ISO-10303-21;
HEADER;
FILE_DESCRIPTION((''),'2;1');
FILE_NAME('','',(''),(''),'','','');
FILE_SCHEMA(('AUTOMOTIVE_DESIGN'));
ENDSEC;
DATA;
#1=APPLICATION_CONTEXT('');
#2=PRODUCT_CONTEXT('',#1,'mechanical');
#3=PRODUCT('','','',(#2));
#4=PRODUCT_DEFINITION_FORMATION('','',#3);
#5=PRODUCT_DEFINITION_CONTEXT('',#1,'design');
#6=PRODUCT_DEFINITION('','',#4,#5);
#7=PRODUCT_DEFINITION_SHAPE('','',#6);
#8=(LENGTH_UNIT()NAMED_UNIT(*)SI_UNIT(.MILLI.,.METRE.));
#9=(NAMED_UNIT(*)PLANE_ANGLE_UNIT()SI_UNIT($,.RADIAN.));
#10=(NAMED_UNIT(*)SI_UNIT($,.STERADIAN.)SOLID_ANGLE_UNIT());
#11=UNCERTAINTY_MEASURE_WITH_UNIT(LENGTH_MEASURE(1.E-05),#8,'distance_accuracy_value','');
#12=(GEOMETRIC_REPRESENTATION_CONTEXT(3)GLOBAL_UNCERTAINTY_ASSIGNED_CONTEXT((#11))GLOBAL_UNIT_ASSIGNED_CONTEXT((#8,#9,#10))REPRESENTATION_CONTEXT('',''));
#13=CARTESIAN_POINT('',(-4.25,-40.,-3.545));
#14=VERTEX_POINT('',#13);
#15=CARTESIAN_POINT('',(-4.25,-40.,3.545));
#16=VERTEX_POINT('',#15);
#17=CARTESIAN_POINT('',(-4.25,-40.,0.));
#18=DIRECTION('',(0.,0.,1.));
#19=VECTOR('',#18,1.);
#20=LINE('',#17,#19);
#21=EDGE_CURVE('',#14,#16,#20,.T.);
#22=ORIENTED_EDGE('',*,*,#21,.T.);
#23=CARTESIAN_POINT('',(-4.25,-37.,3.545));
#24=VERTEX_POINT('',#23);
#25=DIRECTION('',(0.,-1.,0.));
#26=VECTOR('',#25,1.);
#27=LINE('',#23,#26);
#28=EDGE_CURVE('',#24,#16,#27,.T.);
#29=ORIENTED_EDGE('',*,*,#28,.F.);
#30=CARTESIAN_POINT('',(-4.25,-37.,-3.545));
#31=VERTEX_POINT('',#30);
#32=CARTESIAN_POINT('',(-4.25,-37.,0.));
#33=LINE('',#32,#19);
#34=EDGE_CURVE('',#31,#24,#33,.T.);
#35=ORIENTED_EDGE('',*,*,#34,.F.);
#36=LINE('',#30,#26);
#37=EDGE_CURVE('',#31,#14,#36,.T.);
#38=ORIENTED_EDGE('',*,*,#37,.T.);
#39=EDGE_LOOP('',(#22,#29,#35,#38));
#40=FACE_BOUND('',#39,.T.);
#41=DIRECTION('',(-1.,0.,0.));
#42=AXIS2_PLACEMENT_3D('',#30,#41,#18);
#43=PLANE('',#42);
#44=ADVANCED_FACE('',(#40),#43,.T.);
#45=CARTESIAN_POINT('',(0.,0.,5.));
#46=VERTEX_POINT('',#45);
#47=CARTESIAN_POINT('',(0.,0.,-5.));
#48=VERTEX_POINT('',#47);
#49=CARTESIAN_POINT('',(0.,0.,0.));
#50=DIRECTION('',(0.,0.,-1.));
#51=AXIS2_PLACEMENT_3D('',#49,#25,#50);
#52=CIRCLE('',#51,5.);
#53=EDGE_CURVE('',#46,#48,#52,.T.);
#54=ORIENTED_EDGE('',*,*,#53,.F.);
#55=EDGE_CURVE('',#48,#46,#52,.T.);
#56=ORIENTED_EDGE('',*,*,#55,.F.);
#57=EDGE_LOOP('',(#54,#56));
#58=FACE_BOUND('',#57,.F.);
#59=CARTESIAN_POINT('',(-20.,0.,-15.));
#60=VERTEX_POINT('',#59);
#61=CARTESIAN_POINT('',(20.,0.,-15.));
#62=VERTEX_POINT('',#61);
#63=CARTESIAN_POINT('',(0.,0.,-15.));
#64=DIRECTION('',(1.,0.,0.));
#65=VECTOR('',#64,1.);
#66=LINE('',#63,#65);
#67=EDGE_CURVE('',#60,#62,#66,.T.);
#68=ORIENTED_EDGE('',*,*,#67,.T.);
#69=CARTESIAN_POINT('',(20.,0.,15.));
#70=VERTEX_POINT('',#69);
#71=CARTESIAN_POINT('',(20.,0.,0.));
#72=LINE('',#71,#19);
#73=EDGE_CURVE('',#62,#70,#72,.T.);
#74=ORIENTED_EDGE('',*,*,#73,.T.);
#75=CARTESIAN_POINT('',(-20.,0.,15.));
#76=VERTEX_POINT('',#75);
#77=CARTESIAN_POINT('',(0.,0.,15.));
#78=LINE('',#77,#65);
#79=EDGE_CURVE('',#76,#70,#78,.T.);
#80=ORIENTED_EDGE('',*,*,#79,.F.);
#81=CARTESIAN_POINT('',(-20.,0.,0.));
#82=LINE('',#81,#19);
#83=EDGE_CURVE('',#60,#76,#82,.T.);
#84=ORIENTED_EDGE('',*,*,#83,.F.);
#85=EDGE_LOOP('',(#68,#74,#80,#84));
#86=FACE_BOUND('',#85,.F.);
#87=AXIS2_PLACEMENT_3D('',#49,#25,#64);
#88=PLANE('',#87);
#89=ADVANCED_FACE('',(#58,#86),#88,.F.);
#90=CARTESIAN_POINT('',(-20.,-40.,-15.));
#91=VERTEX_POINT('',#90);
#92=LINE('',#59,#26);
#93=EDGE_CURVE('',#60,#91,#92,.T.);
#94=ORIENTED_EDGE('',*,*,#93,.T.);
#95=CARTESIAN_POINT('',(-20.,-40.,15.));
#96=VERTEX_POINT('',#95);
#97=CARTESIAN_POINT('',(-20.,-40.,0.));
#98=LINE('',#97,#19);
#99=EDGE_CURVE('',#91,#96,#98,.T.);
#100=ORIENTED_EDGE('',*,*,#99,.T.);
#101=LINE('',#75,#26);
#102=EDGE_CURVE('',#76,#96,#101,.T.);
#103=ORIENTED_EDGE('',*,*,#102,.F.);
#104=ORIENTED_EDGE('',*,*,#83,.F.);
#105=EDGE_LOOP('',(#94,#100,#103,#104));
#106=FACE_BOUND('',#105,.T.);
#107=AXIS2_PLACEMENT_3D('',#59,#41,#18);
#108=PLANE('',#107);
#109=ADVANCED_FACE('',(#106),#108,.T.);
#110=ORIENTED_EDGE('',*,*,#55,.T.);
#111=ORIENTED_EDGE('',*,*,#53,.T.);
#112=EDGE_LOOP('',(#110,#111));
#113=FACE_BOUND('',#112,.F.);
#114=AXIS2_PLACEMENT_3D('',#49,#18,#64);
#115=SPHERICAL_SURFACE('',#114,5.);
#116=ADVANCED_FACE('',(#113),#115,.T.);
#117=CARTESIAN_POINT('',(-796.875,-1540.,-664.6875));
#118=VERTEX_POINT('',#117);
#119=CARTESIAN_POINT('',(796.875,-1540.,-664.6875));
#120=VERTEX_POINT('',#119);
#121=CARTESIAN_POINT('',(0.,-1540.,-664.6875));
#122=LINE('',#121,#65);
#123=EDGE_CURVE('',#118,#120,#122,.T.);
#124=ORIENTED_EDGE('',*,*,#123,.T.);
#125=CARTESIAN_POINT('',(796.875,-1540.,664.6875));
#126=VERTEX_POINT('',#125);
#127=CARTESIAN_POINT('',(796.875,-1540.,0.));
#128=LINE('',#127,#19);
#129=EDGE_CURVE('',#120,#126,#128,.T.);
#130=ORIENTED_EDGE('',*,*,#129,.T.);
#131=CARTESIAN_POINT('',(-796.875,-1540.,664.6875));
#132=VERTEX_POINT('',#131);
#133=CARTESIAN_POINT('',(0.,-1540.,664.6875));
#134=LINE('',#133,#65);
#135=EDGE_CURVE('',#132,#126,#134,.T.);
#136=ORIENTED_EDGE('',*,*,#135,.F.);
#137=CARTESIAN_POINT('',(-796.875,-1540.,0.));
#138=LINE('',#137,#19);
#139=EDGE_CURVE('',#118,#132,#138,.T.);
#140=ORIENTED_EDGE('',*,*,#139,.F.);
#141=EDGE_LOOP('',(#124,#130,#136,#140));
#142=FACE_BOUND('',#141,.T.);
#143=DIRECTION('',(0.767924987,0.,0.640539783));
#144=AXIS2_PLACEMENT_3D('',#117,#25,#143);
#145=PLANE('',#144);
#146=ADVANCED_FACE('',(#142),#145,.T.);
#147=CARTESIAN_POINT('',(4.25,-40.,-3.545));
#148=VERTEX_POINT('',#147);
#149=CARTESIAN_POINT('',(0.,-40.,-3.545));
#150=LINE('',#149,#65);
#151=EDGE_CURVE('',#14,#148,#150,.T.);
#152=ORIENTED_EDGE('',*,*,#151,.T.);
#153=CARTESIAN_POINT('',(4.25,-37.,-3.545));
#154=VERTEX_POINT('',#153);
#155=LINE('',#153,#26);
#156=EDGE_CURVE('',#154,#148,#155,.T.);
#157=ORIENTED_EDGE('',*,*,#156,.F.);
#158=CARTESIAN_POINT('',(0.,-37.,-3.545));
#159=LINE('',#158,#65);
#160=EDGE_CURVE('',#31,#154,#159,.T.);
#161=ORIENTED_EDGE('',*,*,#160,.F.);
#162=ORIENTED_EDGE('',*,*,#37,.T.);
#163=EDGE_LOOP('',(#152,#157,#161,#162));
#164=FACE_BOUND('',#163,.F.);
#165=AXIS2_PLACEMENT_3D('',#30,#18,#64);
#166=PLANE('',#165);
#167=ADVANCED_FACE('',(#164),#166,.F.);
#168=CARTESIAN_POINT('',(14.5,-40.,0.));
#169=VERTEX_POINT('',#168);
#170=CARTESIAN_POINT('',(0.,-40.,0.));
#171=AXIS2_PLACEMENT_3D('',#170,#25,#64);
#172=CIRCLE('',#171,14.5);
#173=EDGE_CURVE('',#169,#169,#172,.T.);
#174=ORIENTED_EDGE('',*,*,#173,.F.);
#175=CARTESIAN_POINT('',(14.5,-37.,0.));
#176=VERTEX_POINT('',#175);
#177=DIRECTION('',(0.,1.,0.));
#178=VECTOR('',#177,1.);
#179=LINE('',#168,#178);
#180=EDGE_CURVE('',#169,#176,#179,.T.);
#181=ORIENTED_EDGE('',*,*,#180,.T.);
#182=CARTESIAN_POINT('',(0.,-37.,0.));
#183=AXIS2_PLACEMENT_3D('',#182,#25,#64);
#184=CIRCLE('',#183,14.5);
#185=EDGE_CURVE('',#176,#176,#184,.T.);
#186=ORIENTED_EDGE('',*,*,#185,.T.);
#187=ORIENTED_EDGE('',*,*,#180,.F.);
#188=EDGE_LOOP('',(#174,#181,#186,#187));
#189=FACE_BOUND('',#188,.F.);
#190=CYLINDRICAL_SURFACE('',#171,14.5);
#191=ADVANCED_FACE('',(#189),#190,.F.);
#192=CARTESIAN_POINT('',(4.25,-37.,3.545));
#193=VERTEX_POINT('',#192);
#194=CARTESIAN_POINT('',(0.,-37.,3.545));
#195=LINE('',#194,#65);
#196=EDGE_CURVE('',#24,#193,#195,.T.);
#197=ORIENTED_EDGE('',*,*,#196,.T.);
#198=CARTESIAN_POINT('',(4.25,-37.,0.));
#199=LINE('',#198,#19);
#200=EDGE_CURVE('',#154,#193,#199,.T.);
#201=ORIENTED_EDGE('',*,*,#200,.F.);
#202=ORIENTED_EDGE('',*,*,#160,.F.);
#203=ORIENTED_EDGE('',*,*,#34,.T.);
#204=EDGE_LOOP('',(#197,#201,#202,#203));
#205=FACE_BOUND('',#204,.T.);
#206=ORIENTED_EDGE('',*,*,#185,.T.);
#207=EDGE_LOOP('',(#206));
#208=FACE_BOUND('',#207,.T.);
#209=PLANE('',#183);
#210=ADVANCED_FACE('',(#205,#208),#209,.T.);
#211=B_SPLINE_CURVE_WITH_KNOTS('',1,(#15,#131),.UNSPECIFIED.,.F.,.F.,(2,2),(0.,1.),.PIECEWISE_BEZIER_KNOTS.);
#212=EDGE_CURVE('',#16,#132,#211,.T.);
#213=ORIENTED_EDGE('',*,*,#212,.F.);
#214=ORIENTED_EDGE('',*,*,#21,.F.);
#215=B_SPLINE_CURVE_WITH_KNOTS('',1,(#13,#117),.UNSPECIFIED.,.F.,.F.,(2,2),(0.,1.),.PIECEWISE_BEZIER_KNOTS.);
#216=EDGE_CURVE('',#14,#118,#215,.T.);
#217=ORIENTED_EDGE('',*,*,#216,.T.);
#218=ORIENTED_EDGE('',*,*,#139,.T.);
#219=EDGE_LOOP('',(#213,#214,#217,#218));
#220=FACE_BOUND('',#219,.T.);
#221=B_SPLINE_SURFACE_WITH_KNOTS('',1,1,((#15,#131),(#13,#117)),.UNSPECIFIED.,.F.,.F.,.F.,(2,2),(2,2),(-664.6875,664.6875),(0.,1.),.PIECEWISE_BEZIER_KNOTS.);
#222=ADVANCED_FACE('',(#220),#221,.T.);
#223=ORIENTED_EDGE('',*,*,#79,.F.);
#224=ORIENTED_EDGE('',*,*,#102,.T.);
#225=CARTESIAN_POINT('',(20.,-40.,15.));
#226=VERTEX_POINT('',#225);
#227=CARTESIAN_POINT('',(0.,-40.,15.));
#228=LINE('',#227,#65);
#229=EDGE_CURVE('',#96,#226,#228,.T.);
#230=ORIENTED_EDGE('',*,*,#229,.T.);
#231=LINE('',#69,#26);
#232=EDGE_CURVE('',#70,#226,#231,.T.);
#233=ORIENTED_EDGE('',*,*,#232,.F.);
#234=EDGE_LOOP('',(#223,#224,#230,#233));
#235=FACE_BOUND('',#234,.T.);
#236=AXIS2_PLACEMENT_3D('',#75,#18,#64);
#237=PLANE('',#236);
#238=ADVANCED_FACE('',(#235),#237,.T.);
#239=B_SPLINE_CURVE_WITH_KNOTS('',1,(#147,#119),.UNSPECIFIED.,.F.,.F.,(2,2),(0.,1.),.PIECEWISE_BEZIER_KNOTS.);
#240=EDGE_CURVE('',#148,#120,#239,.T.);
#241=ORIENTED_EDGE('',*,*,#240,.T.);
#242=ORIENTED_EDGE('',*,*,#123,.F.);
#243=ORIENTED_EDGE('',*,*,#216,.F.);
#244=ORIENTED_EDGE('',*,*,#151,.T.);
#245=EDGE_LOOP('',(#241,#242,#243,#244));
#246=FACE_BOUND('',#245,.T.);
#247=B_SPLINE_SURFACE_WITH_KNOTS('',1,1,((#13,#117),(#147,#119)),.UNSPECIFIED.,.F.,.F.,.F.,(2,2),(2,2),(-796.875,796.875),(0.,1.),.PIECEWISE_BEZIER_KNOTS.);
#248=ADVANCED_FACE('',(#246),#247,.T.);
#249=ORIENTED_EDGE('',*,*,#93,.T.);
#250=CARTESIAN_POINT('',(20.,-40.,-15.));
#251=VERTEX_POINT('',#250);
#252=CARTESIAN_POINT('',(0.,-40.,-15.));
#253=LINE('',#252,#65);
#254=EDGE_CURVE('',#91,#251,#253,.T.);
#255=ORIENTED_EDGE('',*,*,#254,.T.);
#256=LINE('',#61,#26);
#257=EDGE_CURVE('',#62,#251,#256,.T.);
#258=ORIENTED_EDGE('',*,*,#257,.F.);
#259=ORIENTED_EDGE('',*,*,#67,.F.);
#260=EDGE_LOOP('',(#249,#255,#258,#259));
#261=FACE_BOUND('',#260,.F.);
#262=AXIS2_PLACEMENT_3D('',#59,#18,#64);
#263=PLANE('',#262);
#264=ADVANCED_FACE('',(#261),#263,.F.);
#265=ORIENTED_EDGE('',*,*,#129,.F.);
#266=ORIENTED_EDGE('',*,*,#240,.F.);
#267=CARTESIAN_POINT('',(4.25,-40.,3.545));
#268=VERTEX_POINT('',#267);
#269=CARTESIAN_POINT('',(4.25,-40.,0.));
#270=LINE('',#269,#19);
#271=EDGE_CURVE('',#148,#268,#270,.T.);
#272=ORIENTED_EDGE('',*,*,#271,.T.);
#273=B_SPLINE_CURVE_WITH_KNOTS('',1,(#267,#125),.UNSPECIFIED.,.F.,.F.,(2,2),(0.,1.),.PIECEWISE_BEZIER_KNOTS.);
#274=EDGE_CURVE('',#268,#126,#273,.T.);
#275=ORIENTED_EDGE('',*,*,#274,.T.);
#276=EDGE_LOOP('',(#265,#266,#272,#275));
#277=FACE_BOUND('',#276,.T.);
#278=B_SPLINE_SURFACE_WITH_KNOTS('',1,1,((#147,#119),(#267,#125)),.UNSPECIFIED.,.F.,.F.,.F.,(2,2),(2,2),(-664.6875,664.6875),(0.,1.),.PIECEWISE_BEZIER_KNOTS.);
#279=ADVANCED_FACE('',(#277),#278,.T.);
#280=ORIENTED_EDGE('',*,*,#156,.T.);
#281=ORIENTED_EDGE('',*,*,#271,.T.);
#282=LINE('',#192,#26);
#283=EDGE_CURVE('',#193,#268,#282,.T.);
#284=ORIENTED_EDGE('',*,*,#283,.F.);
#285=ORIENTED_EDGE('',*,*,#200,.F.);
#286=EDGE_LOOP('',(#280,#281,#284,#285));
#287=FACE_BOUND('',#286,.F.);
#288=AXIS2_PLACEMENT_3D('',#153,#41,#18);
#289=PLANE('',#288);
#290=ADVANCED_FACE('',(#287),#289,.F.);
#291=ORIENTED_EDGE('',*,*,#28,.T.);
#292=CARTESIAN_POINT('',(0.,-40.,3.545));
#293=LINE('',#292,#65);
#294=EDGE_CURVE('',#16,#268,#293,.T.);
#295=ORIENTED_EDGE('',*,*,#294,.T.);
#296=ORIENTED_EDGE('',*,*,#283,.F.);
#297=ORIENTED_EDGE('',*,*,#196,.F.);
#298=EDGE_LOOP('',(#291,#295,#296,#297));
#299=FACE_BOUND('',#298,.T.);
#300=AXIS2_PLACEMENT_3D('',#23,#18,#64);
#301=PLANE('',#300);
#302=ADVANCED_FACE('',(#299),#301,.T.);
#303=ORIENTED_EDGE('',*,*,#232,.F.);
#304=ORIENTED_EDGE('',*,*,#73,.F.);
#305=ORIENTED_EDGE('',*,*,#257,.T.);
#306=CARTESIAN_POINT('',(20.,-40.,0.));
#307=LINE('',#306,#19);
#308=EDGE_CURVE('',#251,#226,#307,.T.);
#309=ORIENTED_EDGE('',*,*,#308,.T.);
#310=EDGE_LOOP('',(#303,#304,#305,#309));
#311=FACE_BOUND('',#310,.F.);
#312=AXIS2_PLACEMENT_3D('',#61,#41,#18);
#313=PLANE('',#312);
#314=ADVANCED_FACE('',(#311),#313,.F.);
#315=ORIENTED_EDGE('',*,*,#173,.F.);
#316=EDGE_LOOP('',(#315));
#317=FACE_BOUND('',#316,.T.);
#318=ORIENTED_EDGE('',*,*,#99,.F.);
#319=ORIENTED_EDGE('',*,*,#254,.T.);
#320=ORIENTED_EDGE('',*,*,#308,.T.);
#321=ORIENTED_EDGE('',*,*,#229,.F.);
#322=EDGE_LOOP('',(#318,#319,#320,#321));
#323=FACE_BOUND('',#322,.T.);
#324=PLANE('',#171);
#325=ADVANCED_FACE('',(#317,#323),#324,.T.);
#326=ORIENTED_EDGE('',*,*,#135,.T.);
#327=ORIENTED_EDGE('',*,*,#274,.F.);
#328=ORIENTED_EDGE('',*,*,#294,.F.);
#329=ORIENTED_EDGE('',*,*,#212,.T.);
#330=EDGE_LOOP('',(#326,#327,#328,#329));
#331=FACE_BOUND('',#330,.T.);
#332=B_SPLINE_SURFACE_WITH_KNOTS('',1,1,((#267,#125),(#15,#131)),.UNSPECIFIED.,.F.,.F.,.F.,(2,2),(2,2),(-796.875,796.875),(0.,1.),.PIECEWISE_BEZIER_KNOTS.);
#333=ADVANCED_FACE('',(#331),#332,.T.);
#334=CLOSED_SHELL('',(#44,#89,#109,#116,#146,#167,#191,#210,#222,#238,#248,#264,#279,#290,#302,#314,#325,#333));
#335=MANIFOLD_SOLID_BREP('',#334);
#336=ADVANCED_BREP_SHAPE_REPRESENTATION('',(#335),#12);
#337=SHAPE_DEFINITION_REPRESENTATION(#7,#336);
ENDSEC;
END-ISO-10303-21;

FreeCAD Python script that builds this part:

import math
import FreeCAD as App
import Part
import Sketcher


def add_polygon(sketch, points):
    """Adds a closed chain of lines whose ends are joined by coincident constraints."""
    first, n = sketch.GeometryCount, len(points)
    for a, b in zip(points, points[1:] + points[:1]):
        sketch.addGeometry(Part.LineSegment(App.Vector(*a, 0), App.Vector(*b, 0)), False)
    for i in range(n):
        sketch.addConstraint(Sketcher.Constraint("Coincident", first + i, 2, first + (i + 1) % n, 1))

doc = App.newDocument("Part")
body = doc.addObject("PartDesign::Body", "Body")

sketch1 = body.newObject("Sketcher::SketchObject", "Sketch")
sketch1.AttachmentSupport = (doc.getObject("XZ_Plane"), [""])
sketch1.MapMode = "FlatFace"
add_polygon(sketch1, [(-20, 15), (-20, -15), (20, -15), (20, 15)])
sketch1.addConstraint([
    Sketcher.Constraint("Vertical", 0),
    Sketcher.Constraint("Horizontal", 1),
    Sketcher.Constraint("Vertical", 2),
    Sketcher.Constraint("Horizontal", 3),
    Sketcher.Constraint("Symmetric", 0, 2, 2, 2, -1, 1),
    Sketcher.Constraint("DistanceX", 1, 1, 1, 2, 40.0),
    Sketcher.Constraint("DistanceY", 0, 2, 0, 1, 30.0),
])
pad1 = body.newObject("PartDesign::Pad", "Pad")
pad1.Profile = sketch1
pad1.Length = 40

sketch2 = body.newObject("Sketcher::SketchObject", "Sketch001")
sketch2.AttachmentSupport = (doc.getObject("XZ_Plane"), [""])
sketch2.MapMode = "FlatFace"
sketch2.AttachmentOffset = App.Placement(App.Vector(0, 0, 40), App.Rotation())
sketch2.addGeometry(Part.Circle(App.Vector(0, 0, 0), App.Vector(0, 0, 1), 14), False)
sketch2.addConstraint([
    Sketcher.Constraint("Coincident", 0, 3, -1, 1),
    Sketcher.Constraint("Diameter", 0, 29.0),
])
pocket1 = body.newObject("PartDesign::Pocket", "Pocket")
pocket1.Profile = sketch2
pocket1.Length = 3

sketch3 = body.newObject("Sketcher::SketchObject", "Sketch002")
sketch3.AttachmentSupport = (doc.getObject("XZ_Plane"), [""])
sketch3.MapMode = "FlatFace"
sketch3.AttachmentOffset = App.Placement(App.Vector(0, 0, 37), App.Rotation())
add_polygon(sketch3, [(-4, 4), (-4, -4), (4, -4), (4, 4)])
sketch3.addConstraint([
    Sketcher.Constraint("Vertical", 0),
    Sketcher.Constraint("Horizontal", 1),
    Sketcher.Constraint("Vertical", 2),
    Sketcher.Constraint("Horizontal", 3),
    Sketcher.Constraint("Symmetric", 0, 2, 2, 2, -1, 1),
    Sketcher.Constraint("DistanceX", 1, 1, 1, 2, 8.5),
    Sketcher.Constraint("DistanceY", 0, 2, 0, 1, 7.09),
])
pad2 = body.newObject("PartDesign::Pad", "Pad001")
pad2.Profile = sketch3
pad2.Length = 3

sketch4 = body.newObject("Sketcher::SketchObject", "Sketch003")
sketch4.AttachmentSupport = (doc.getObject("XZ_Plane"), [""])
sketch4.MapMode = "FlatFace"
sketch4.AttachmentOffset = App.Placement(App.Vector(0, 0, 40), App.Rotation())
add_polygon(sketch4, [(-4, 4), (-4, -4), (4, -4), (4, 4)])
sketch4.addConstraint([
    Sketcher.Constraint("Vertical", 0),
    Sketcher.Constraint("Horizontal", 1),
    Sketcher.Constraint("Vertical", 2),
    Sketcher.Constraint("Horizontal", 3),
    Sketcher.Constraint("Symmetric", 0, 2, 2, 2, -1, 1),
    Sketcher.Constraint("DistanceX", 1, 1, 1, 2, 8.5),
    Sketcher.Constraint("DistanceY", 0, 2, 0, 1, 7.09),
])

sketch5 = body.newObject("Sketcher::SketchObject", "Sketch004")
sketch5.AttachmentSupport = (doc.getObject("XZ_Plane"), [""])
sketch5.MapMode = "FlatFace"
sketch5.AttachmentOffset = App.Placement(App.Vector(0, 0, 1540), App.Rotation())
add_polygon(sketch5, [(-797, 665), (-797, -665), (797, -665), (797, 665)])
sketch5.addConstraint([
    Sketcher.Constraint("Vertical", 0),
    Sketcher.Constraint("Horizontal", 1),
    Sketcher.Constraint("Vertical", 2),
    Sketcher.Constraint("Horizontal", 3),
    Sketcher.Constraint("Symmetric", 0, 2, 2, 2, -1, 1),
    Sketcher.Constraint("DistanceX", 1, 1, 1, 2, 1593.75),
    Sketcher.Constraint("DistanceY", 0, 2, 0, 1, 1329.375),
])

additiveloft = body.newObject("PartDesign::AdditiveLoft", "AdditiveLoft")
additiveloft.Profile = sketch4
additiveloft.Sections = [sketch5]

sketch6 = body.newObject("Sketcher::SketchObject", "Sketch005")
sketch6.AttachmentSupport = (doc.getObject("XZ_Plane"), [""])
sketch6.MapMode = "FlatFace"
sketch6.addGeometry([
    Part.ArcOfCircle(Part.Circle(App.Vector(0, 0, 0), App.Vector(0, 0, 1), 5), math.radians(-90), math.radians(90)),
    Part.LineSegment(App.Vector(0, 5, 0), App.Vector(0, -5, 0)),
], False)
sketch6.addConstraint([
    Sketcher.Constraint("Coincident", 0, 1, 1, 2),
    Sketcher.Constraint("Coincident", 1, 1, 0, 2),
    Sketcher.Constraint("Vertical", 1),
    Sketcher.Constraint("Coincident", 0, 3, -1, 1),
    Sketcher.Constraint("PointOnObject", 0, 1, -2),
    Sketcher.Constraint("Radius", 0, 5.0),
])
revolution = body.newObject("PartDesign::Revolution", "Revolution")
revolution.Profile = sketch6
revolution.ReferenceAxis = (sketch6, ["V_Axis"])
revolution.Angle = 360

doc.recompute()
